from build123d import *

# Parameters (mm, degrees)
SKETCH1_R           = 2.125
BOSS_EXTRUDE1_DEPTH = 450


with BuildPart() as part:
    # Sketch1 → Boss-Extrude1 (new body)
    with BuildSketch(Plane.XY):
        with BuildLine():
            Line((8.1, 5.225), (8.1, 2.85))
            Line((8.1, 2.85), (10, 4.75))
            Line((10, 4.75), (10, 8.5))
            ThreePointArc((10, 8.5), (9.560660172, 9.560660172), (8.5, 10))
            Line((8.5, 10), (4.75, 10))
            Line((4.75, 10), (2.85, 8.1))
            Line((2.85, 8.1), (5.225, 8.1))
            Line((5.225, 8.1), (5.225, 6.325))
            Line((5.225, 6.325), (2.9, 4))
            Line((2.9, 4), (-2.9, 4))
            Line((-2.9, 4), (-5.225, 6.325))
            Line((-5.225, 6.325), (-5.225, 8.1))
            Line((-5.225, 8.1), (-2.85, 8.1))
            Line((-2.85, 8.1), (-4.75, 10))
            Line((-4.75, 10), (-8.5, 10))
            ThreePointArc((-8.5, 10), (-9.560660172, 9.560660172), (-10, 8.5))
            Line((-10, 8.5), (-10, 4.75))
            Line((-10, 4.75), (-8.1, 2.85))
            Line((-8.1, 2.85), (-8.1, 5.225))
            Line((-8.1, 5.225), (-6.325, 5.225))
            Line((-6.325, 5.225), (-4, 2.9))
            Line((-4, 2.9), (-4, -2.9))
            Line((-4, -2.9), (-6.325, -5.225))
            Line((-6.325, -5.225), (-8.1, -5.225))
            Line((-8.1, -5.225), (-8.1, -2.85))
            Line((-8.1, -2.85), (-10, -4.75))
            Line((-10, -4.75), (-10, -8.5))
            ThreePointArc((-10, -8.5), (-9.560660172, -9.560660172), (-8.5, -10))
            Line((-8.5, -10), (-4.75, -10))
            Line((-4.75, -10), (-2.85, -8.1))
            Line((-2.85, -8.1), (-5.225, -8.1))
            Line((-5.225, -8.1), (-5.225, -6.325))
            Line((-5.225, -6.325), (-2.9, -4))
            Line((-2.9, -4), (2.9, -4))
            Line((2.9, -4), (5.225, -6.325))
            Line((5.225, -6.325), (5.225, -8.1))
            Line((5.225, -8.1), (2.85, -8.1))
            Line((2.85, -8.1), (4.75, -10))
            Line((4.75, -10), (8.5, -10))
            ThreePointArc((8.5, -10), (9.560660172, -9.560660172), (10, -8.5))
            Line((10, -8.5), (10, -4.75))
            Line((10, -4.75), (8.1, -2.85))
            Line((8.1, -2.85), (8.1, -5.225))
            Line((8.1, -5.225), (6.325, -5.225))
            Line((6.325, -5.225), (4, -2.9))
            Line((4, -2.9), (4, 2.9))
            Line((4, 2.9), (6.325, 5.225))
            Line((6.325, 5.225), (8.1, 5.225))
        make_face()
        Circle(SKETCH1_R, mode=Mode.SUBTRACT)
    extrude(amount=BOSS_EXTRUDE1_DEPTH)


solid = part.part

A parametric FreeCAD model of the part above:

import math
import FreeCAD as App
import Part
import Sketcher
Q = App.Units.Quantity

doc = App.newDocument("Part")
body = doc.addObject("PartDesign::Body", "Body")

# Sketch on XY plane
sketch1 = body.newObject("Sketcher::SketchObject", "Sketch")
sketch1.AttachmentSupport = (doc.getObject("XY_Plane"), [""])
sketch1.MapMode = "FlatFace"
sketch1.addGeometry(Part.LineSegment(App.Vector(8.1, 5.2, 0), App.Vector(8.1, 2.9, 0)), False)
sketch1.addGeometry(Part.LineSegment(App.Vector(8.1, 2.9, 0), App.Vector(10, 4.8, 0)), False)
sketch1.addGeometry(Part.LineSegment(App.Vector(10, 4.8, 0), App.Vector(10, 8.5, 0)), False)
sketch1.addGeometry(Part.ArcOfCircle(Part.Circle(App.Vector(8.5, 8.5, 0), App.Vector(0, 0, 1), 1.5), math.radians(0), math.radians(90)), False)
sketch1.addGeometry(Part.LineSegment(App.Vector(8.5, 10, 0), App.Vector(4.8, 10, 0)), False)
sketch1.addGeometry(Part.LineSegment(App.Vector(4.8, 10, 0), App.Vector(2.9, 8.1, 0)), False)
sketch1.addGeometry(Part.LineSegment(App.Vector(2.9, 8.1, 0), App.Vector(5.2, 8.1, 0)), False)
sketch1.addGeometry(Part.LineSegment(App.Vector(5.2, 8.1, 0), App.Vector(5.2, 6.3, 0)), False)
sketch1.addGeometry(Part.LineSegment(App.Vector(5.2, 6.3, 0), App.Vector(2.9, 4, 0)), False)
sketch1.addGeometry(Part.LineSegment(App.Vector(2.9, 4, 0), App.Vector(-2.9, 4, 0)), False)
sketch1.addGeometry(Part.LineSegment(App.Vector(-2.9, 4, 0), App.Vector(-5.2, 6.3, 0)), False)
sketch1.addGeometry(Part.LineSegment(App.Vector(-5.2, 6.3, 0), App.Vector(-5.2, 8.1, 0)), False)
sketch1.addGeometry(Part.LineSegment(App.Vector(-5.2, 8.1, 0), App.Vector(-2.9, 8.1, 0)), False)
sketch1.addGeometry(Part.LineSegment(App.Vector(-2.9, 8.1, 0), App.Vector(-4.8, 10, 0)), False)
sketch1.addGeometry(Part.LineSegment(App.Vector(-4.8, 10, 0), App.Vector(-8.5, 10, 0)), False)
sketch1.addGeometry(Part.ArcOfCircle(Part.Circle(App.Vector(-8.5, 8.5, 0), App.Vector(0, 0, 1), 1.5), math.radians(90), math.radians(180)), False)
sketch1.addGeometry(Part.LineSegment(App.Vector(-10, 8.5, 0), App.Vector(-10, 4.8, 0)), False)
sketch1.addGeometry(Part.LineSegment(App.Vector(-10, 4.8, 0), App.Vector(-8.1, 2.9, 0)), False)
sketch1.addGeometry(Part.LineSegment(App.Vector(-8.1, 2.9, 0), App.Vector(-8.1, 5.2, 0)), False)
sketch1.addGeometry(Part.LineSegment(App.Vector(-8.1, 5.2, 0), App.Vector(-6.3, 5.2, 0)), False)
sketch1.addGeometry(Part.LineSegment(App.Vector(-6.3, 5.2, 0), App.Vector(-4, 2.9, 0)), False)
sketch1.addGeometry(Part.LineSegment(App.Vector(-4, 2.9, 0), App.Vector(-4, -2.9, 0)), False)
sketch1.addGeometry(Part.LineSegment(App.Vector(-4, -2.9, 0), App.Vector(-6.3, -5.2, 0)), False)
sketch1.addGeometry(Part.LineSegment(App.Vector(-6.3, -5.2, 0), App.Vector(-8.1, -5.2, 0)), False)
sketch1.addGeometry(Part.LineSegment(App.Vector(-8.1, -5.2, 0), App.Vector(-8.1, -2.9, 0)), False)
sketch1.addGeometry(Part.LineSegment(App.Vector(-8.1, -2.9, 0), App.Vector(-10, -4.8, 0)), False)
sketch1.addGeometry(Part.LineSegment(App.Vector(-10, -4.8, 0), App.Vector(-10, -8.5, 0)), False)
sketch1.addGeometry(Part.ArcOfCircle(Part.Circle(App.Vector(-8.5, -8.5, 0), App.Vector(0, 0, 1), 1.5), math.radians(180), math.radians(270)), False)
sketch1.addGeometry(Part.LineSegment(App.Vector(-8.5, -10, 0), App.Vector(-4.8, -10, 0)), False)
sketch1.addGeometry(Part.LineSegment(App.Vector(-4.8, -10, 0), App.Vector(-2.9, -8.1, 0)), False)
sketch1.addGeometry(Part.LineSegment(App.Vector(-2.9, -8.1, 0), App.Vector(-5.2, -8.1, 0)), False)
sketch1.addGeometry(Part.LineSegment(App.Vector(-5.2, -8.1, 0), App.Vector(-5.2, -6.3, 0)), False)
sketch1.addGeometry(Part.LineSegment(App.Vector(-5.2, -6.3, 0), App.Vector(-2.9, -4, 0)), False)
sketch1.addGeometry(Part.LineSegment(App.Vector(-2.9, -4, 0), App.Vector(2.9, -4, 0)), False)
sketch1.addGeometry(Part.LineSegment(App.Vector(2.9, -4, 0), App.Vector(5.2, -6.3, 0)), False)
sketch1.addGeometry(Part.LineSegment(App.Vector(5.2, -6.3, 0), App.Vector(5.2, -8.1, 0)), False)
sketch1.addGeometry(Part.LineSegment(App.Vector(5.2, -8.1, 0), App.Vector(2.9, -8.1, 0)), False)
sketch1.addGeometry(Part.LineSegment(App.Vector(2.9, -8.1, 0), App.Vector(4.8, -10, 0)), False)
sketch1.addGeometry(Part.LineSegment(App.Vector(4.8, -10, 0), App.Vector(8.5, -10, 0)), False)
sketch1.addGeometry(Part.ArcOfCircle(Part.Circle(App.Vector(8.5, -8.5, 0), App.Vector(0, 0, 1), 1.5), math.radians(-90), math.radians(0)), False)
sketch1.addGeometry(Part.LineSegment(App.Vector(10, -8.5, 0), App.Vector(10, -4.8, 0)), False)
sketch1.addGeometry(Part.LineSegment(App.Vector(10, -4.8, 0), App.Vector(8.1, -2.9, 0)), False)
sketch1.addGeometry(Part.LineSegment(App.Vector(8.1, -2.9, 0), App.Vector(8.1, -5.2, 0)), False)
sketch1.addGeometry(Part.LineSegment(App.Vector(8.1, -5.2, 0), App.Vector(6.3, -5.2, 0)), False)
sketch1.addGeometry(Part.LineSegment(App.Vector(6.3, -5.2, 0), App.Vector(4, -2.9, 0)), False)
sketch1.addGeometry(Part.LineSegment(App.Vector(4, -2.9, 0), App.Vector(4, 2.9, 0)), False)
sketch1.addGeometry(Part.LineSegment(App.Vector(4, 2.9, 0), App.Vector(6.3, 5.2, 0)), False)
sketch1.addGeometry(Part.LineSegment(App.Vector(6.3, 5.2, 0), App.Vector(8.1, 5.2, 0)), False)
sketch1.addGeometry(Part.Circle(App.Vector(0, 0, 0), App.Vector(0, 0, 1), 2.1), False)
sketch1.addConstraint(Sketcher.Constraint("Coincident", 0, 2, 1, 1))
sketch1.addConstraint(Sketcher.Constraint("Coincident", 1, 2, 2, 1))
sketch1.addConstraint(Sketcher.Constraint("Tangent", 2, 2, 3, 1))
sketch1.addConstraint(Sketcher.Constraint("Tangent", 3, 2, 4, 1))
sketch1.addConstraint(Sketcher.Constraint("Coincident", 4, 2, 5, 1))
sketch1.addConstraint(Sketcher.Constraint("Coincident", 5, 2, 6, 1))
sketch1.addConstraint(Sketcher.Constraint("Coincident", 6, 2, 7, 1))
sketch1.addConstraint(Sketcher.Constraint("Coincident", 7, 2, 8, 1))
sketch1.addConstraint(Sketcher.Constraint("Coincident", 8, 2, 9, 1))
sketch1.addConstraint(Sketcher.Constraint("Coincident", 9, 2, 10, 1))
sketch1.addConstraint(Sketcher.Constraint("Coincident", 10, 2, 11, 1))
sketch1.addConstraint(Sketcher.Constraint("Coincident", 11, 2, 12, 1))
sketch1.addConstraint(Sketcher.Constraint("Coincident", 12, 2, 13, 1))
sketch1.addConstraint(Sketcher.Constraint("Coincident", 13, 2, 14, 1))
sketch1.addConstraint(Sketcher.Constraint("Tangent", 14, 2, 15, 1))
sketch1.addConstraint(Sketcher.Constraint("Tangent", 15, 2, 16, 1))
sketch1.addConstraint(Sketcher.Constraint("Coincident", 16, 2, 17, 1))
sketch1.addConstraint(Sketcher.Constraint("Coincident", 17, 2, 18, 1))
sketch1.addConstraint(Sketcher.Constraint("Coincident", 18, 2, 19, 1))
sketch1.addConstraint(Sketcher.Constraint("Coincident", 19, 2, 20, 1))
sketch1.addConstraint(Sketcher.Constraint("Coincident", 20, 2, 21, 1))
sketch1.addConstraint(Sketcher.Constraint("Coincident", 21, 2, 22, 1))
sketch1.addConstraint(Sketcher.Constraint("Coincident", 22, 2, 23, 1))
sketch1.addConstraint(Sketcher.Constraint("Coincident", 23, 2, 24, 1))
sketch1.addConstraint(Sketcher.Constraint("Coincident", 24, 2, 25, 1))
sketch1.addConstraint(Sketcher.Constraint("Coincident", 25, 2, 26, 1))
sketch1.addConstraint(Sketcher.Constraint("Tangent", 26, 2, 27, 1))
sketch1.addConstraint(Sketcher.Constraint("Tangent", 27, 2, 28, 1))
sketch1.addConstraint(Sketcher.Constraint("Coincident", 28, 2, 29, 1))
sketch1.addConstraint(Sketcher.Constraint("Coincident", 29, 2, 30, 1))
sketch1.addConstraint(Sketcher.Constraint("Coincident", 30, 2, 31, 1))
sketch1.addConstraint(Sketcher.Constraint("Coincident", 31, 2, 32, 1))
sketch1.addConstraint(Sketcher.Constraint("Coincident", 32, 2, 33, 1))
sketch1.addConstraint(Sketcher.Constraint("Coincident", 33, 2, 34, 1))
sketch1.addConstraint(Sketcher.Constraint("Coincident", 34, 2, 35, 1))
sketch1.addConstraint(Sketcher.Constraint("Coincident", 35, 2, 36, 1))
sketch1.addConstraint(Sketcher.Constraint("Coincident", 36, 2, 37, 1))
sketch1.addConstraint(Sketcher.Constraint("Coincident", 37, 2, 38, 1))
sketch1.addConstraint(Sketcher.Constraint("Tangent", 38, 2, 39, 1))
sketch1.addConstraint(Sketcher.Constraint("Tangent", 39, 2, 40, 1))
sketch1.addConstraint(Sketcher.Constraint("Coincident", 40, 2, 41, 1))
sketch1.addConstraint(Sketcher.Constraint("Coincident", 41, 2, 42, 1))
sketch1.addConstraint(Sketcher.Constraint("Coincident", 42, 2, 43, 1))
sketch1.addConstraint(Sketcher.Constraint("Coincident", 43, 2, 44, 1))
sketch1.addConstraint(Sketcher.Constraint("Coincident", 44, 2, 45, 1))
sketch1.addConstraint(Sketcher.Constraint("Coincident", 45, 2, 46, 1))
sketch1.addConstraint(Sketcher.Constraint("Coincident", 46, 2, 47, 1))
sketch1.addConstraint(Sketcher.Constraint("Coincident", 47, 2, 0, 1))
sketch1.addConstraint(Sketcher.Constraint("Vertical", 0))
sketch1.addConstraint(Sketcher.Constraint("Vertical", 2))
sketch1.addConstraint(Sketcher.Constraint("Horizontal", 4))
sketch1.addConstraint(Sketcher.Constraint("Horizontal", 6))
sketch1.addConstraint(Sketcher.Constraint("Vertical", 7))
sketch1.addConstraint(Sketcher.Constraint("Horizontal", 9))
sketch1.addConstraint(Sketcher.Constraint("Vertical", 11))
sketch1.addConstraint(Sketcher.Constraint("Horizontal", 12))
sketch1.addConstraint(Sketcher.Constraint("Horizontal", 14))
sketch1.addConstraint(Sketcher.Constraint("Vertical", 16))
sketch1.addConstraint(Sketcher.Constraint("Vertical", 18))
sketch1.addConstraint(Sketcher.Constraint("Horizontal", 19))
sketch1.addConstraint(Sketcher.Constraint("Vertical", 21))
sketch1.addConstraint(Sketcher.Constraint("Horizontal", 23))
sketch1.addConstraint(Sketcher.Constraint("Vertical", 24))
sketch1.addConstraint(Sketcher.Constraint("Vertical", 26))
sketch1.addConstraint(Sketcher.Constraint("Horizontal", 28))
sketch1.addConstraint(Sketcher.Constraint("Horizontal", 30))
sketch1.addConstraint(Sketcher.Constraint("Vertical", 31))
sketch1.addConstraint(Sketcher.Constraint("Horizontal", 33))
sketch1.addConstraint(Sketcher.Constraint("Vertical", 35))
sketch1.addConstraint(Sketcher.Constraint("Horizontal", 36))
sketch1.addConstraint(Sketcher.Constraint("Horizontal", 38))
sketch1.addConstraint(Sketcher.Constraint("Vertical", 40))
sketch1.addConstraint(Sketcher.Constraint("Vertical", 42))
sketch1.addConstraint(Sketcher.Constraint("Horizontal", 43))
sketch1.addConstraint(Sketcher.Constraint("Vertical", 45))
sketch1.addConstraint(Sketcher.Constraint("Horizontal", 47))
sketch1.addConstraint(Sketcher.Constraint("Coincident", 48, 3, -1, 1))
sketch1.addConstraint(Sketcher.Constraint("Equal", 3, 15))
sketch1.addConstraint(Sketcher.Constraint("Equal", 15, 27))
sketch1.addConstraint(Sketcher.Constraint("Equal", 27, 39))
sketch1.addConstraint(Sketcher.Constraint("Symmetric", 3, 3, 27, 3, -1, 1))
sketch1.addConstraint(Sketcher.Constraint("Symmetric", 15, 3, 39, 3, -1, 1))
sketch1.addConstraint(Sketcher.Constraint("Symmetric", 0, 2, 24, 2, -1, 1))
sketch1.addConstraint(Sketcher.Constraint("Symmetric", 5, 2, 29, 2, -1, 1))
sketch1.addConstraint(Sketcher.Constraint("Symmetric", 7, 2, 31, 2, -1, 1))
sketch1.addConstraint(Sketcher.Constraint("Symmetric", 8, 2, 32, 2, -1, 1))
sketch1.addConstraint(Sketcher.Constraint("Symmetric", 10, 2, 34, 2, -1, 1))
sketch1.addConstraint(Sketcher.Constraint("Symmetric", 12, 2, 36, 2, -1, 1))
sketch1.addConstraint(Sketcher.Constraint("Symmetric", 17, 2, 41, 2, -1, 1))
sketch1.addConstraint(Sketcher.Constraint("Symmetric", 19, 2, 43, 2, -1, 1))
sketch1.addConstraint(Sketcher.Constraint("Symmetric", 20, 2, 44, 2, -1, 1))
sketch1.addConstraint(Sketcher.Constraint("Symmetric", 22, 2, 46, 2, -1, 1))
sketch1.addConstraint(Sketcher.Constraint("Symmetric", 3, 3, 15, 3, -2))
sketch1.addConstraint(Sketcher.Constraint("Symmetric", 7, 2, 10, 2, -2))
sketch1.addConstraint(Sketcher.Constraint("Symmetric", 5, 2, 12, 2, -2))
sketch1.addConstraint(Sketcher.Constraint("Symmetric", 0, 2, 17, 2, -2))
sketch1.addConstraint(Sketcher.Constraint("Symmetric", 22, 2, 43, 2, -2))
sketch1.addConstraint(Sketcher.Constraint("Parallel", 1, 5))
sketch1.addConstraint(Sketcher.Constraint("Parallel", 5, 8))
sketch1.addConstraint(Sketcher.Constraint("Perpendicular", 8, 10))
sketch1.addConstraint(Sketcher.Constraint("Parallel", 10, 13))
sketch1.addConstraint(Sketcher.Constraint("Parallel", 13, 17))
sketch1.addConstraint(Sketcher.Constraint("Parallel", 17, 20))
sketch1.addConstraint(Sketcher.Constraint("Perpendicular", 20, 22))
sketch1.addConstraint(Sketcher.Constraint("Parallel", 22, 25))
sketch1.addConstraint(Sketcher.Constraint("Parallel", 25, 29))
sketch1.addConstraint(Sketcher.Constraint("Perpendicular", 32, 34))
sketch1.addConstraint(Sketcher.Constraint("Parallel", 34, 37))
sketch1.addConstraint(Sketcher.Constraint("Parallel", 37, 41))
sketch1.addConstraint(Sketcher.Constraint("Perpendicular", 44, 46))
sketch1.addConstraint(Sketcher.Constraint("Horizontal", 1, 2, 16, 2))
sketch1.addConstraint(Sketcher.Constraint("Equal", 36, 0))
sketch1.addConstraint(Sketcher.Constraint("Equal", 38, 2))
sketch1.addConstraint(Sketcher.Constraint("Equal", 47, 7))
sketch1.addConstraint(Sketcher.Constraint("Equal", 33, 21))
sketch1.addConstraint(Sketcher.Constraint("Equal", 1, 5))
sketch1.addConstraint(Sketcher.Constraint("Equal", 10, 20))
sketch1.addConstraint(Sketcher.Constraint("Radius", 3, Q("1.5 mm")))
sketch1.addConstraint(Sketcher.Constraint("Diameter", 48, Q("4.25 mm")))
sketch1.addConstraint(Sketcher.Constraint("DistanceX", 9, 2, 9, 1, Q("5.8 mm")))
sketch1.addConstraint(Sketcher.Constraint("DistanceX", -1, 1, 1, 2, Q("10 mm")))
sketch1.addConstraint(Sketcher.Constraint("DistanceY", -1, 1, 8, 2, Q("4 mm")))
sketch1.addConstraint(Sketcher.Constraint("DistanceX", 4, 2, 4, 1, Q("3.75 mm")))
sketch1.addConstraint(Sketcher.Constraint("DistanceX", -1, 1, 0, 2, Q("8.1 mm")))
sketch1.addConstraint(Sketcher.Constraint("DistanceX", 6, 1, 6, 2, Q("2.375 mm")))
pad1 = body.newObject("PartDesign::Pad", "Pad")
pad1.Profile = sketch1
pad1.Length = 450

doc.recompute()
